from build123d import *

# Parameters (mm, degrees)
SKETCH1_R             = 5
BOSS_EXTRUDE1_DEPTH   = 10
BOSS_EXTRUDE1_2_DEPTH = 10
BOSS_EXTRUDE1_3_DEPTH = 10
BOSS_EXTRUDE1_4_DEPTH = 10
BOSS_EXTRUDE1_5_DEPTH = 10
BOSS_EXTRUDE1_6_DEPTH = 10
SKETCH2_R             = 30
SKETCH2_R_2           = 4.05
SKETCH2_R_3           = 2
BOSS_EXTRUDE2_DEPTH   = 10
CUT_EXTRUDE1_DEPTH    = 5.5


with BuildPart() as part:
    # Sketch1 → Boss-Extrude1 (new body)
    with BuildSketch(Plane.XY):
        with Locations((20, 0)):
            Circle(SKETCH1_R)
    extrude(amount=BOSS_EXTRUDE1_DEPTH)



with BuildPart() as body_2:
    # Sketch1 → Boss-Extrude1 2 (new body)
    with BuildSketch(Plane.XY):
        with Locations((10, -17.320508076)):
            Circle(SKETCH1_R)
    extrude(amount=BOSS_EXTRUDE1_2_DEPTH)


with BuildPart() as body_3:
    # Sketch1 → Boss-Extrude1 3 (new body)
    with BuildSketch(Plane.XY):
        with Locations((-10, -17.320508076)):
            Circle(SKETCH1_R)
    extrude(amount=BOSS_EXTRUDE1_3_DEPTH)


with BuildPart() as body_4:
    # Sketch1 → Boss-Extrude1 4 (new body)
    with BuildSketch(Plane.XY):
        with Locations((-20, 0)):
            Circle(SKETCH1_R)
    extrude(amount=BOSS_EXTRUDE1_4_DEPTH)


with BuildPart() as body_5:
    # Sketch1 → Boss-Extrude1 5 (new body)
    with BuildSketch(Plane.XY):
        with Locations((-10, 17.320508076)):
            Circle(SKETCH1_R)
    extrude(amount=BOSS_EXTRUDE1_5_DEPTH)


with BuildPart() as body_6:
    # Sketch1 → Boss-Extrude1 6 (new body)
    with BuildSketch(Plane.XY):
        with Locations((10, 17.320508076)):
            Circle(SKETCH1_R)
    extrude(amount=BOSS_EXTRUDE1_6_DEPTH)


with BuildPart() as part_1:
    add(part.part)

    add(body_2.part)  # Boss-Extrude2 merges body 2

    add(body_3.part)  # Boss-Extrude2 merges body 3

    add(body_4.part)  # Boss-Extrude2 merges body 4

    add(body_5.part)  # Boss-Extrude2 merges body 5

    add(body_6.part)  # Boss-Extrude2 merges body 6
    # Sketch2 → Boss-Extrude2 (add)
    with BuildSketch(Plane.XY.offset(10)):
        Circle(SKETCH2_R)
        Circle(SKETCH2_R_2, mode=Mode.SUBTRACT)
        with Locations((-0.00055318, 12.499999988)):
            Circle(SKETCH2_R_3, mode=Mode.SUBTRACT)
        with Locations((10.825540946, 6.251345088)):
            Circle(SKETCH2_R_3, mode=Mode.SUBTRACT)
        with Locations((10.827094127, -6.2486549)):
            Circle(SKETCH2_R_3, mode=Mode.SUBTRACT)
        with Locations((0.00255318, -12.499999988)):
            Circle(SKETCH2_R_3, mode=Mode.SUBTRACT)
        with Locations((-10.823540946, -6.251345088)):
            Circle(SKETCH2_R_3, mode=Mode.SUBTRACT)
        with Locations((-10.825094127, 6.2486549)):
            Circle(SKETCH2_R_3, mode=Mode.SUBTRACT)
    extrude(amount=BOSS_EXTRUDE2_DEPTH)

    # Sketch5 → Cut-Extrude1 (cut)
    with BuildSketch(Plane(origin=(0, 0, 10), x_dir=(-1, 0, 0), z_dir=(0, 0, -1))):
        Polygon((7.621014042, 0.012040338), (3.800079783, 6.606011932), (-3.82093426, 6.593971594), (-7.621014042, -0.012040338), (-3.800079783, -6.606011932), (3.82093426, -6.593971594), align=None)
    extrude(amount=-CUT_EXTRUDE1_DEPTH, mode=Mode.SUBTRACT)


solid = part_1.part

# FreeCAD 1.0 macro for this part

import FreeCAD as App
import Part
import Sketcher
from FreeCAD import Vector
Q = App.Units.Quantity

doc = App.newDocument("Part")
body = doc.addObject("PartDesign::Body", "Body")

# Sketch on XY plane
sketch1 = body.newObject("Sketcher::SketchObject", "Sketch")
sketch1.AttachmentSupport = (doc.getObject("XY_Plane"), [""])
sketch1.MapMode = "FlatFace"
sketch1.addGeometry(Part.Circle(Vector(20, 0, 0), Vector(0, 0, 1), 5), False)
sketch1.addConstraint([
    Sketcher.Constraint("PointOnObject", 0, 3, -1),
    Sketcher.Constraint("Diameter", 0, Q("10 mm")),
    Sketcher.Constraint("DistanceX", -1, 1, 0, 3, Q("20 mm")),
])
pad1 = body.newObject("PartDesign::Pad", "Pad")
pad1.Profile = sketch1
pad1.Length = 10
body2 = doc.addObject("PartDesign::Body", "Body001")

# Sketch on XY plane
sketch2 = body2.newObject("Sketcher::SketchObject", "Sketch001")
sketch2.AttachmentSupport = (doc.getObject("XY_Plane001"), [""])
sketch2.MapMode = "FlatFace"
sketch2.addGeometry(Part.Circle(Vector(10, -17.320508, 0), Vector(0, 0, 1), 5), False)
sketch2.addConstraint([
    Sketcher.Constraint("Diameter", 0, Q("10 mm")),
    Sketcher.Constraint("DistanceX", -1, 1, 0, 3, Q("10 mm")),
    Sketcher.Constraint("DistanceY", 0, 3, -1, 1, Q("17.320508 mm")),
])
pad2 = body2.newObject("PartDesign::Pad", "Pad001")
pad2.Profile = sketch2
pad2.Length = 10
body3 = doc.addObject("PartDesign::Body", "Body002")

# Sketch on XY plane
sketch3 = body3.newObject("Sketcher::SketchObject", "Sketch002")
sketch3.AttachmentSupport = (doc.getObject("XY_Plane002"), [""])
sketch3.MapMode = "FlatFace"
sketch3.addGeometry(Part.Circle(Vector(-10, -17.320508, 0), Vector(0, 0, 1), 5), False)
sketch3.addConstraint([
    Sketcher.Constraint("Diameter", 0, Q("10 mm")),
    Sketcher.Constraint("DistanceX", 0, 3, -1, 1, Q("10 mm")),
    Sketcher.Constraint("DistanceY", 0, 3, -1, 1, Q("17.320508 mm")),
])
pad3 = body3.newObject("PartDesign::Pad", "Pad002")
pad3.Profile = sketch3
pad3.Length = 10
body4 = doc.addObject("PartDesign::Body", "Body003")

# Sketch on XY plane
sketch4 = body4.newObject("Sketcher::SketchObject", "Sketch003")
sketch4.AttachmentSupport = (doc.getObject("XY_Plane003"), [""])
sketch4.MapMode = "FlatFace"
sketch4.addGeometry(Part.Circle(Vector(-20, 0, 0), Vector(0, 0, 1), 5), False)
sketch4.addConstraint([
    Sketcher.Constraint("PointOnObject", 0, 3, -1),
    Sketcher.Constraint("Diameter", 0, Q("10 mm")),
    Sketcher.Constraint("DistanceX", 0, 3, -1, 1, Q("20 mm")),
])
pad4 = body4.newObject("PartDesign::Pad", "Pad003")
pad4.Profile = sketch4
pad4.Length = 10
body5 = doc.addObject("PartDesign::Body", "Body004")

# Sketch on XY plane
sketch5 = body5.newObject("Sketcher::SketchObject", "Sketch004")
sketch5.AttachmentSupport = (doc.getObject("XY_Plane004"), [""])
sketch5.MapMode = "FlatFace"
sketch5.addGeometry(Part.Circle(Vector(-10, 17.320508, 0), Vector(0, 0, 1), 5), False)
sketch5.addConstraint([
    Sketcher.Constraint("Diameter", 0, Q("10 mm")),
    Sketcher.Constraint("DistanceX", 0, 3, -1, 1, Q("10 mm")),
    Sketcher.Constraint("DistanceY", -1, 1, 0, 3, Q("17.320508 mm")),
])
pad5 = body5.newObject("PartDesign::Pad", "Pad004")
pad5.Profile = sketch5
pad5.Length = 10
body6 = doc.addObject("PartDesign::Body", "Body005")

# Sketch on XY plane
sketch6 = body6.newObject("Sketcher::SketchObject", "Sketch005")
sketch6.AttachmentSupport = (doc.getObject("XY_Plane005"), [""])
sketch6.MapMode = "FlatFace"
sketch6.addGeometry(Part.Circle(Vector(10, 17.320508, 0), Vector(0, 0, 1), 5), False)
sketch6.addConstraint([
    Sketcher.Constraint("Diameter", 0, Q("10 mm")),
    Sketcher.Constraint("DistanceX", -1, 1, 0, 3, Q("10 mm")),
    Sketcher.Constraint("DistanceY", -1, 1, 0, 3, Q("17.320508 mm")),
])
pad6 = body6.newObject("PartDesign::Pad", "Pad005")
pad6.Profile = sketch6
pad6.Length = 10
body.AllowCompound = True
doc.recompute()

boolean = body.newObject("PartDesign::Boolean", "Boolean")
boolean.Type = "Fuse"
boolean.addObjects([body2])
doc.recompute()

boolean2 = body.newObject("PartDesign::Boolean", "Boolean001")
boolean2.Type = "Fuse"
boolean2.addObjects([body3])
doc.recompute()

boolean3 = body.newObject("PartDesign::Boolean", "Boolean002")
boolean3.Type = "Fuse"
boolean3.addObjects([body4])
doc.recompute()

boolean4 = body.newObject("PartDesign::Boolean", "Boolean003")
boolean4.Type = "Fuse"
boolean4.addObjects([body5])
doc.recompute()

boolean5 = body.newObject("PartDesign::Boolean", "Boolean004")
boolean5.Type = "Fuse"
boolean5.addObjects([body6])

# Sketch on XY plane
sketch7 = body.newObject("Sketcher::SketchObject", "Sketch006")
sketch7.AttachmentSupport = (doc.getObject("XY_Plane"), [""])
sketch7.MapMode = "FlatFace"
sketch7.AttachmentOffset = App.Placement(Vector(0, 0, 10), App.Rotation())
sketch7.addGeometry([
    Part.Circle(Vector(0, 0, 0), Vector(0, 0, 1), 30),  # 0
    Part.Circle(Vector(-10.823541, -6.251345, 0), Vector(0, 0, 1), 2),  # 1
    Part.Circle(Vector(0.002553, -12.5, 0), Vector(0, 0, 1), 2),  # 2
    Part.Circle(Vector(10.827094, -6.248655, 0), Vector(0, 0, 1), 2),  # 3
    Part.Circle(Vector(-10.825094, 6.248655, 0), Vector(0, 0, 1), 2),  # 4
    Part.Circle(Vector(0, 0, 0), Vector(0, 0, 1), 4.05),  # 5
    Part.Circle(Vector(-0.000553, 12.5, 0), Vector(0, 0, 1), 2),  # 6
    Part.Circle(Vector(10.825541, 6.251345, 0), Vector(0, 0, 1), 2),  # 7
], False)
sketch7.addConstraint([
    Sketcher.Constraint("Coincident", 0, 3, -1, 1),
    Sketcher.Constraint("Coincident", 5, 3, -1, 1),
    Sketcher.Constraint("Equal", 1, 2),
    Sketcher.Constraint("Equal", 2, 3),
    Sketcher.Constraint("Equal", 3, 4),
    Sketcher.Constraint("Equal", 4, 6),
    Sketcher.Constraint("Equal", 6, 7),
    Sketcher.Constraint("Diameter", 0, Q("60 mm")),
    Sketcher.Constraint("Diameter", 1, Q("4 mm")),
    Sketcher.Constraint("Diameter", 5, Q("8.1 mm")),
    Sketcher.Constraint("DistanceY", 2, 3, -1, 1, Q("12.5 mm")),
    Sketcher.Constraint("DistanceY", -1, 1, 6, 3, Q("12.5 mm")),
    Sketcher.Constraint("DistanceY", 1, 3, 4, 3, Q("12.5 mm")),
    Sketcher.Constraint("DistanceY", 3, 3, 7, 3, Q("12.5 mm")),
    Sketcher.Constraint("DistanceX", 1, 3, -1, 1, Q("10.823541 mm")),
    Sketcher.Constraint("DistanceX", -1, 1, 7, 3, Q("10.825541 mm")),
    Sketcher.Constraint("DistanceX", 2, 3, 3, 3, Q("10.824541 mm")),
    Sketcher.Constraint("DistanceY", 1, 3, 3, 3, Q("0.00269 mm")),
    Sketcher.Constraint("DistanceX", 4, 3, 3, 3, Q("21.652188 mm")),
    Sketcher.Constraint("DistanceX", 4, 3, 6, 3, Q("10.824541 mm")),
    Sketcher.Constraint("DistanceY", 1, 3, -1, 1, Q("6.251345 mm")),
    Sketcher.Constraint("DistanceX", -1, 1, 2, 3, Q("0.002553 mm")),
])
pad7 = body.newObject("PartDesign::Pad", "Pad006")
pad7.Profile = sketch7
pad7.Length = 10

# Sketch on XY plane
sketch8 = body.newObject("Sketcher::SketchObject", "Sketch007")
sketch8.AttachmentSupport = (doc.getObject("XY_Plane"), [""])
sketch8.MapMode = "FlatFace"
sketch8.AttachmentOffset = App.Placement(Vector(0, 0, 10), App.Rotation())
sketch8.addGeometry([
    Part.LineSegment(Vector(-7.621014, 0.01204, 0), Vector(-3.80008, 6.606012, 0)),  # 0
    Part.LineSegment(Vector(-3.80008, 6.606012, 0), Vector(3.820934, 6.593972, 0)),  # 1
    Part.LineSegment(Vector(3.820934, 6.593972, 0), Vector(7.621014, -0.01204, 0)),  # 2
    Part.LineSegment(Vector(7.621014, -0.01204, 0), Vector(3.80008, -6.606012, 0)),  # 3
    Part.LineSegment(Vector(3.80008, -6.606012, 0), Vector(-3.820934, -6.593972, 0)),  # 4
    Part.LineSegment(Vector(-3.820934, -6.593972, 0), Vector(-7.621014, 0.01204, 0)),  # 5
], False)
sketch8.addConstraint([
    Sketcher.Constraint("Coincident", 0, 2, 1, 1),
    Sketcher.Constraint("Coincident", 1, 2, 2, 1),
    Sketcher.Constraint("Coincident", 2, 2, 3, 1),
    Sketcher.Constraint("Coincident", 3, 2, 4, 1),
    Sketcher.Constraint("Coincident", 4, 2, 5, 1),
    Sketcher.Constraint("Coincident", 5, 2, 0, 1),
    Sketcher.Constraint("Symmetric", 0, 2, 3, 2, -1, 1),
    Sketcher.Constraint("Symmetric", 1, 2, 4, 2, -1, 1),
    Sketcher.Constraint("Symmetric", 2, 2, 5, 2, -1, 1),
    Sketcher.Constraint("Equal", 0, 1),
    Sketcher.Constraint("Equal", 1, 2),
    Sketcher.Constraint("DistanceX", 0, 2, -1, 1, Q("3.80008 mm")),
    Sketcher.Constraint("DistanceY", -1, 1, 0, 2, Q("6.606012 mm")),
    Sketcher.Constraint("DistanceY", -1, 1, 1, 2, Q("6.593972 mm")),
    Sketcher.Constraint("DistanceY", 2, 2, -1, 1, Q("0.01204 mm")),
])
pocket1 = body.newObject("PartDesign::Pocket", "Pocket")
pocket1.Profile = sketch8
pocket1.Length = 5.5
pocket1.Reversed = True

doc.recompute()
